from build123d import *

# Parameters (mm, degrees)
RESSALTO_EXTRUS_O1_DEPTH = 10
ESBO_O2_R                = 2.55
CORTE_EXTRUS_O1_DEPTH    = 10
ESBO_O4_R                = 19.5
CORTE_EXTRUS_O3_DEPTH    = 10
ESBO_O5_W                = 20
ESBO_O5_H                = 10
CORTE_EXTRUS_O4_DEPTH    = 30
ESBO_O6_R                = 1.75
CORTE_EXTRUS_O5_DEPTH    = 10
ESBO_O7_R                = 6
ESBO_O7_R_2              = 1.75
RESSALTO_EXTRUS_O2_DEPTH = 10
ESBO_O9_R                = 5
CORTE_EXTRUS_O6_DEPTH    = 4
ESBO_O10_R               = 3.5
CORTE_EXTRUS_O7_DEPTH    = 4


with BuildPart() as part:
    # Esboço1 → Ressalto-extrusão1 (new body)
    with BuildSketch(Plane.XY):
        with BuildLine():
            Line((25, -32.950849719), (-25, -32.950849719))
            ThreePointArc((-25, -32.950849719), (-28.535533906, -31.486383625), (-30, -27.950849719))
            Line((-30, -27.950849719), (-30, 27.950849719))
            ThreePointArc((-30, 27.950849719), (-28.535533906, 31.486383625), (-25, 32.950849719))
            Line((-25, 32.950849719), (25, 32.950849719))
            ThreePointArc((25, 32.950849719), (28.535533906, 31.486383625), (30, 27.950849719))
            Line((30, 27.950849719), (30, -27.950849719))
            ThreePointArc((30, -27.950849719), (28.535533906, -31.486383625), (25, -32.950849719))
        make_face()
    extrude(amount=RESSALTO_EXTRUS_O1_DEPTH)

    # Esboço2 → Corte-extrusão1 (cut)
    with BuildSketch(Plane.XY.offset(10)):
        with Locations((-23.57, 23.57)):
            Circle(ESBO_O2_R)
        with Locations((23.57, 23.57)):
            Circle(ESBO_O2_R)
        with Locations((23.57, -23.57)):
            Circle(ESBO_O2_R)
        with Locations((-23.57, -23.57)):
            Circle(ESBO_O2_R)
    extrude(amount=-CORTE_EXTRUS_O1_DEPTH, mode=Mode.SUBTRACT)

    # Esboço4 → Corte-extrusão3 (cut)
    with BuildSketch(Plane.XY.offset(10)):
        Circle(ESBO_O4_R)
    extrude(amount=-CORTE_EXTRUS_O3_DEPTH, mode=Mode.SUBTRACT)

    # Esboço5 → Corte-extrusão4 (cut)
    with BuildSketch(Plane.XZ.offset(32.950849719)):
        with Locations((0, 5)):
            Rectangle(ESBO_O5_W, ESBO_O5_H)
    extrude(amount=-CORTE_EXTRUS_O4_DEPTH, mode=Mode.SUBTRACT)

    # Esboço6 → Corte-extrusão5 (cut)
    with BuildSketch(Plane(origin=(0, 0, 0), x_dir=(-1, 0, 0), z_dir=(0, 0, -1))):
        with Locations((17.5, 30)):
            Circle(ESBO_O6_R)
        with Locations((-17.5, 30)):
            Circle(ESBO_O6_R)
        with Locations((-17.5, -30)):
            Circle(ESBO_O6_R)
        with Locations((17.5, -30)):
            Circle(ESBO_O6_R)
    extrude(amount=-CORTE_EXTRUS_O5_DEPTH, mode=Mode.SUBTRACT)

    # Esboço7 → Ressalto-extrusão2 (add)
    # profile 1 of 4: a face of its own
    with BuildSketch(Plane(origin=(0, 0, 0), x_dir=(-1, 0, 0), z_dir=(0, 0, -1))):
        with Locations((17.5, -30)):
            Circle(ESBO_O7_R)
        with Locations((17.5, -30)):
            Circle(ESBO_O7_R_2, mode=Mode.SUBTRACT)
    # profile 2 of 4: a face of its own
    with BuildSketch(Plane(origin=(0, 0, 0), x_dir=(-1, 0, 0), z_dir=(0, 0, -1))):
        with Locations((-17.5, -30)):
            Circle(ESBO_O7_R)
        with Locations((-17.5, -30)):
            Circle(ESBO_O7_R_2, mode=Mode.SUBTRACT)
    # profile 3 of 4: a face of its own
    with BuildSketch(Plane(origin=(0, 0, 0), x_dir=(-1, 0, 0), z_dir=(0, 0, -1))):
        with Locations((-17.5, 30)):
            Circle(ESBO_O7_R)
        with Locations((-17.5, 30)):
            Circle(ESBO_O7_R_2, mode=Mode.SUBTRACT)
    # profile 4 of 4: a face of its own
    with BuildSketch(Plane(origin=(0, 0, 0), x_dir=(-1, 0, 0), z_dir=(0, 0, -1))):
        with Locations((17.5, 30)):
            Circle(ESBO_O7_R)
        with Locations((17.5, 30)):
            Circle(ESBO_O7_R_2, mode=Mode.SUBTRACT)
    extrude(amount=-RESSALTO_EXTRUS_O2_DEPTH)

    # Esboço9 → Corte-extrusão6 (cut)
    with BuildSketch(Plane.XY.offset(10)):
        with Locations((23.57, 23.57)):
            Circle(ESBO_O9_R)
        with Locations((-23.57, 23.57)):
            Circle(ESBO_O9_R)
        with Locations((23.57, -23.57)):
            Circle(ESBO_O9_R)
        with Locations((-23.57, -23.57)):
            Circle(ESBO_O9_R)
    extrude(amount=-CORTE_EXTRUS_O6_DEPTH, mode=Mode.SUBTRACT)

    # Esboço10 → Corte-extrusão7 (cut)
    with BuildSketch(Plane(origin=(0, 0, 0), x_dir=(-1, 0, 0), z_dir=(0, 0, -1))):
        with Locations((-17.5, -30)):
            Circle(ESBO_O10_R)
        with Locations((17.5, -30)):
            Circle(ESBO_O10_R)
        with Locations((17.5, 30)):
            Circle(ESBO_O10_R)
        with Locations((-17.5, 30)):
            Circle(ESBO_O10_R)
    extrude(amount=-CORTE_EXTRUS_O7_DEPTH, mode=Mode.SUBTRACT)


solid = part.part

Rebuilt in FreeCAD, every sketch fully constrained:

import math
import FreeCAD as App
import Part
import Sketcher
Q = App.Units.Quantity

doc = App.newDocument("Part")
body = doc.addObject("PartDesign::Body", "Body")

# Sketch on XY plane
sketch1 = body.newObject("Sketcher::SketchObject", "Sketch")
sketch1.AttachmentSupport = (doc.getObject("XY_Plane"), [""])
sketch1.MapMode = "FlatFace"
sketch1.addGeometry([
    Part.LineSegment(App.Vector(-25, -33, 0), App.Vector(25, -33, 0)),  # 0
    Part.ArcOfCircle(Part.Circle(App.Vector(25, -28, 0), App.Vector(0, 0, 1), 5), math.radians(-90), math.radians(0)),  # 1
    Part.LineSegment(App.Vector(30, -28, 0), App.Vector(30, 28, 0)),  # 2
    Part.ArcOfCircle(Part.Circle(App.Vector(25, 28, 0), App.Vector(0, 0, 1), 5), math.radians(0), math.radians(90)),  # 3
    Part.LineSegment(App.Vector(25, 33, 0), App.Vector(-25, 33, 0)),  # 4
    Part.ArcOfCircle(Part.Circle(App.Vector(-25, 28, 0), App.Vector(0, 0, 1), 5), math.radians(90), math.radians(180)),  # 5
    Part.LineSegment(App.Vector(-30, 28, 0), App.Vector(-30, -28, 0)),  # 6
    Part.ArcOfCircle(Part.Circle(App.Vector(-25, -28, 0), App.Vector(0, 0, 1), 5), math.radians(180), math.radians(270)),  # 7
], False)
sketch1.addConstraint([
    Sketcher.Constraint("Tangent", 0, 2, 1, 1),
    Sketcher.Constraint("Tangent", 1, 2, 2, 1),
    Sketcher.Constraint("Tangent", 2, 2, 3, 1),
    Sketcher.Constraint("Tangent", 3, 2, 4, 1),
    Sketcher.Constraint("Tangent", 4, 2, 5, 1),
    Sketcher.Constraint("Tangent", 5, 2, 6, 1),
    Sketcher.Constraint("Tangent", 6, 2, 7, 1),
    Sketcher.Constraint("Tangent", 7, 2, 0, 1),
    Sketcher.Constraint("Horizontal", 0),
    Sketcher.Constraint("Vertical", 2),
    Sketcher.Constraint("Horizontal", 4),
    Sketcher.Constraint("Vertical", 6),
    Sketcher.Constraint("Equal", 1, 3),
    Sketcher.Constraint("Equal", 3, 5),
    Sketcher.Constraint("Equal", 5, 7),
    Sketcher.Constraint("Symmetric", 1, 3, 5, 3, -1, 1),
    Sketcher.Constraint("Radius", 1, Q("5 mm")),
    Sketcher.Constraint("DistanceX", 0, 1, 0, 2, Q("50 mm")),
    Sketcher.Constraint("DistanceY", 2, 1, 2, 2, Q("55.901699 mm")),
])
pad1 = body.newObject("PartDesign::Pad", "Pad")
pad1.Profile = sketch1
pad1.Length = 10

# Sketch on XY plane
sketch2 = body.newObject("Sketcher::SketchObject", "Sketch001")
sketch2.AttachmentSupport = (doc.getObject("XY_Plane"), [""])
sketch2.MapMode = "FlatFace"
sketch2.AttachmentOffset = App.Placement(App.Vector(0, 0, 10), App.Rotation())
sketch2.addGeometry([
    Part.Circle(App.Vector(-23.6, 23.6, 0), App.Vector(0, 0, 1), 2.5),
    Part.Circle(App.Vector(23.6, 23.6, 0), App.Vector(0, 0, 1), 2.5),
    Part.Circle(App.Vector(23.6, -23.6, 0), App.Vector(0, 0, 1), 2.5),
    Part.Circle(App.Vector(-23.6, -23.6, 0), App.Vector(0, 0, 1), 2.5),
], False)
sketch2.addConstraint([
    Sketcher.Constraint("Equal", 0, 1),
    Sketcher.Constraint("Equal", 1, 2),
    Sketcher.Constraint("Equal", 2, 3),
    Sketcher.Constraint("Symmetric", 0, 3, 2, 3, -1, 1),
    Sketcher.Constraint("Symmetric", 1, 3, 3, 3, -1, 1),
    Sketcher.Constraint("Symmetric", 0, 3, 1, 3, -2),
    Sketcher.Constraint("Diameter", 0, Q("5.1 mm")),
    Sketcher.Constraint("DistanceX", 0, 3, -1, 1, Q("23.57 mm")),
    Sketcher.Constraint("DistanceY", -1, 1, 0, 3, Q("23.57 mm")),
])
pocket1 = body.newObject("PartDesign::Pocket", "Pocket")
pocket1.Profile = sketch2
pocket1.Length = 10

# Sketch on XY plane
sketch3 = body.newObject("Sketcher::SketchObject", "Sketch002")
sketch3.AttachmentSupport = (doc.getObject("XY_Plane"), [""])
sketch3.MapMode = "FlatFace"
sketch3.AttachmentOffset = App.Placement(App.Vector(0, 0, 10), App.Rotation())
sketch3.addGeometry(Part.Circle(App.Vector(0, 0, 0), App.Vector(0, 0, 1), 20), False)
sketch3.addConstraint([
    Sketcher.Constraint("Coincident", 0, 3, -1, 1),
    Sketcher.Constraint("Diameter", 0, Q("39 mm")),
])
pocket2 = body.newObject("PartDesign::Pocket", "Pocket001")
pocket2.Profile = sketch3
pocket2.Length = 10

# Sketch on XZ plane
sketch4 = body.newObject("Sketcher::SketchObject", "Sketch003")
sketch4.AttachmentSupport = (doc.getObject("XZ_Plane"), [""])
sketch4.MapMode = "FlatFace"
sketch4.AttachmentOffset = App.Placement(App.Vector(0, 0, 32.95085), App.Rotation())
sketch4.addGeometry([
    Part.LineSegment(App.Vector(-10, 10, 0), App.Vector(-10, 0, 0)),
    Part.LineSegment(App.Vector(-10, 0, 0), App.Vector(10, 0, 0)),
    Part.LineSegment(App.Vector(10, 0, 0), App.Vector(10, 10, 0)),
    Part.LineSegment(App.Vector(10, 10, 0), App.Vector(-10, 10, 0)),
], False)
sketch4.addConstraint([
    Sketcher.Constraint("Coincident", 0, 2, 1, 1),
    Sketcher.Constraint("Coincident", 1, 2, 2, 1),
    Sketcher.Constraint("Coincident", 2, 2, 3, 1),
    Sketcher.Constraint("Coincident", 3, 2, 0, 1),
    Sketcher.Constraint("Vertical", 0),
    Sketcher.Constraint("Horizontal", 1),
    Sketcher.Constraint("Vertical", 2),
    Sketcher.Constraint("Horizontal", 3),
    Sketcher.Constraint("Symmetric", 0, 2, 1, 2, -1, 1),
    Sketcher.Constraint("DistanceX", 1, 1, 1, 2, Q("20 mm")),
    Sketcher.Constraint("DistanceY", 0, 2, 0, 1, Q("10 mm")),
])
pocket3 = body.newObject("PartDesign::Pocket", "Pocket002")
pocket3.Profile = sketch4
pocket3.Length = 30

# Sketch on XY plane
sketch5 = body.newObject("Sketcher::SketchObject", "Sketch004")
sketch5.AttachmentSupport = (doc.getObject("XY_Plane"), [""])
sketch5.MapMode = "FlatFace"
sketch5.addGeometry([
    Part.Circle(App.Vector(-17.5, 30, 0), App.Vector(0, 0, 1), 1.8),
    Part.Circle(App.Vector(17.5, 30, 0), App.Vector(0, 0, 1), 1.8),
    Part.Circle(App.Vector(17.5, -30, 0), App.Vector(0, 0, 1), 1.8),
    Part.Circle(App.Vector(-17.5, -30, 0), App.Vector(0, 0, 1), 1.8),
], False)
sketch5.addConstraint([
    Sketcher.Constraint("Equal", 0, 1),
    Sketcher.Constraint("Equal", 1, 2),
    Sketcher.Constraint("Equal", 2, 3),
    Sketcher.Constraint("Symmetric", 0, 3, 2, 3, -1, 1),
    Sketcher.Constraint("Symmetric", 1, 3, 3, 3, -1, 1),
    Sketcher.Constraint("Symmetric", 0, 3, 1, 3, -2),
    Sketcher.Constraint("Diameter", 0, Q("3.5 mm")),
    Sketcher.Constraint("DistanceY", -1, 1, 0, 3, Q("30 mm")),
    Sketcher.Constraint("DistanceX", 0, 3, 1, 3, Q("35 mm")),
])
pocket4 = body.newObject("PartDesign::Pocket", "Pocket003")
pocket4.Profile = sketch5
pocket4.Length = 10
pocket4.Reversed = True

# Sketch on XY plane
sketch6 = body.newObject("Sketcher::SketchObject", "Sketch005")
sketch6.AttachmentSupport = (doc.getObject("XY_Plane"), [""])
sketch6.MapMode = "FlatFace"
sketch6.addGeometry([
    Part.Circle(App.Vector(-17.5, -30, 0), App.Vector(0, 0, 1), 6),  # 0
    Part.Circle(App.Vector(-17.5, -30, 0), App.Vector(0, 0, 1), 1.8),  # 1
    Part.Circle(App.Vector(17.5, -30, 0), App.Vector(0, 0, 1), 6),  # 2
    Part.Circle(App.Vector(17.5, -30, 0), App.Vector(0, 0, 1), 1.8),  # 3
    Part.Circle(App.Vector(17.5, 30, 0), App.Vector(0, 0, 1), 6),  # 4
    Part.Circle(App.Vector(17.5, 30, 0), App.Vector(0, 0, 1), 1.8),  # 5
    Part.Circle(App.Vector(-17.5, 30, 0), App.Vector(0, 0, 1), 6),  # 6
    Part.Circle(App.Vector(-17.5, 30, 0), App.Vector(0, 0, 1), 1.8),  # 7
], False)
sketch6.addConstraint([
    Sketcher.Constraint("Coincident", 1, 3, 0, 3),
    Sketcher.Constraint("Coincident", 3, 3, 2, 3),
    Sketcher.Constraint("Coincident", 5, 3, 4, 3),
    Sketcher.Constraint("Coincident", 7, 3, 6, 3),
    Sketcher.Constraint("Equal", 0, 2),
    Sketcher.Constraint("Equal", 1, 3),
    Sketcher.Constraint("Equal", 2, 4),
    Sketcher.Constraint("Equal", 3, 5),
    Sketcher.Constraint("Equal", 4, 6),
    Sketcher.Constraint("Equal", 5, 7),
    Sketcher.Constraint("Symmetric", 0, 3, 4, 3, -1, 1),
    Sketcher.Constraint("Symmetric", 2, 3, 6, 3, -1, 1),
    Sketcher.Constraint("Symmetric", 0, 3, 2, 3, -2),
    Sketcher.Constraint("Diameter", 0, Q("12 mm")),
    Sketcher.Constraint("Diameter", 1, Q("3.5 mm")),
    Sketcher.Constraint("DistanceY", 0, 3, -1, 1, Q("30 mm")),
    Sketcher.Constraint("DistanceX", 0, 3, 2, 3, Q("35 mm")),
])
pad2 = body.newObject("PartDesign::Pad", "Pad001")
pad2.Profile = sketch6
pad2.Length = 10

# Sketch on XY plane
sketch7 = body.newObject("Sketcher::SketchObject", "Sketch006")
sketch7.AttachmentSupport = (doc.getObject("XY_Plane"), [""])
sketch7.MapMode = "FlatFace"
sketch7.AttachmentOffset = App.Placement(App.Vector(0, 0, 10), App.Rotation())
sketch7.addGeometry([
    Part.Circle(App.Vector(24, 24, 0), App.Vector(0, 0, 1), 5),
    Part.Circle(App.Vector(-24, 24, 0), App.Vector(0, 0, 1), 5),
    Part.Circle(App.Vector(24, -24, 0), App.Vector(0, 0, 1), 5),
    Part.Circle(App.Vector(-24, -24, 0), App.Vector(0, 0, 1), 5),
], False)
sketch7.addConstraint([
    Sketcher.Constraint("Equal", 0, 1),
    Sketcher.Constraint("Equal", 1, 2),
    Sketcher.Constraint("Equal", 2, 3),
    Sketcher.Constraint("Symmetric", 1, 3, 2, 3, -1, 1),
    Sketcher.Constraint("Symmetric", 0, 3, 3, 3, -1, 1),
    Sketcher.Constraint("Symmetric", 0, 3, 1, 3, -2),
    Sketcher.Constraint("Diameter", 0, Q("10 mm")),
    Sketcher.Constraint("DistanceX", -1, 1, 0, 3, Q("23.57 mm")),
    Sketcher.Constraint("DistanceY", -1, 1, 0, 3, Q("23.57 mm")),
])
pocket5 = body.newObject("PartDesign::Pocket", "Pocket004")
pocket5.Profile = sketch7
pocket5.Length = 4

# Sketch on XY plane
sketch8 = body.newObject("Sketcher::SketchObject", "Sketch007")
sketch8.AttachmentSupport = (doc.getObject("XY_Plane"), [""])
sketch8.MapMode = "FlatFace"
sketch8.addGeometry([
    Part.Circle(App.Vector(17.5, -30, 0), App.Vector(0, 0, 1), 3.5),
    Part.Circle(App.Vector(-17.5, -30, 0), App.Vector(0, 0, 1), 3.5),
    Part.Circle(App.Vector(-17.5, 30, 0), App.Vector(0, 0, 1), 3.5),
    Part.Circle(App.Vector(17.5, 30, 0), App.Vector(0, 0, 1), 3.5),
], False)
sketch8.addConstraint([
    Sketcher.Constraint("Equal", 0, 1),
    Sketcher.Constraint("Equal", 1, 2),
    Sketcher.Constraint("Equal", 2, 3),
    Sketcher.Constraint("Symmetric", 0, 3, 2, 3, -1, 1),
    Sketcher.Constraint("Symmetric", 1, 3, 3, 3, -1, 1),
    Sketcher.Constraint("Symmetric", 0, 3, 1, 3, -2),
    Sketcher.Constraint("Diameter", 0, Q("7 mm")),
    Sketcher.Constraint("DistanceY", 0, 3, -1, 1, Q("30 mm")),
    Sketcher.Constraint("DistanceX", 1, 3, 0, 3, Q("35 mm")),
])
pocket6 = body.newObject("PartDesign::Pocket", "Pocket005")
pocket6.Profile = sketch8
pocket6.Length = 4
pocket6.Reversed = True

doc.recompute()
